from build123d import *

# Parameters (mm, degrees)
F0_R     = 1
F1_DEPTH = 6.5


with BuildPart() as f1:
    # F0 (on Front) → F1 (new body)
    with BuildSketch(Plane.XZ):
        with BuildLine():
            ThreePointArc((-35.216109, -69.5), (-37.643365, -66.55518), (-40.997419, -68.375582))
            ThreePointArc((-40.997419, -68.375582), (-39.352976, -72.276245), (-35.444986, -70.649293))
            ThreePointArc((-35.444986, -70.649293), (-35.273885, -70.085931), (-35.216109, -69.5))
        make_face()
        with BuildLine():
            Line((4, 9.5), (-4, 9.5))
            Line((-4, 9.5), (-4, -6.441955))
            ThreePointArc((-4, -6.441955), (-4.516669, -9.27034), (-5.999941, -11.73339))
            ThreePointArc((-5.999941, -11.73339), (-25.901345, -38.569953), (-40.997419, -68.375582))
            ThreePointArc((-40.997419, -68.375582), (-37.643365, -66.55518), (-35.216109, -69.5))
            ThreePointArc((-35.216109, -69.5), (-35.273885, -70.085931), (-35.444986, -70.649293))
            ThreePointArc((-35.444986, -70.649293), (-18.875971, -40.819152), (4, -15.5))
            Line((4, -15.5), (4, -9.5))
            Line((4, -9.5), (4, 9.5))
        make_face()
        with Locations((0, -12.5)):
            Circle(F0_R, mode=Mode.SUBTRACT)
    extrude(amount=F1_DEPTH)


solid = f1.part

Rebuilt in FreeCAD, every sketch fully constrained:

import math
import FreeCAD as App
import Part
import Sketcher

doc = App.newDocument("Part")
params = doc.addObject("Spreadsheet::Sheet", "Params")
for row, (alias, value) in enumerate([
    ("sketch1_diameter", "2 mm"),
    ("sketch1_radius", "3 mm"),
    ("sketch1_width", "8 mm"),
    ("sketch1_height", "25 mm"),
    ("pad1_length", "6.5 mm"),
], start=1):
    params.set(f"A{row}", alias)
    params.set(f"B{row}", "=" + value)
    params.setAlias(f"B{row}", alias)

body = doc.addObject("PartDesign::Body", "Body")

# Sketch on XZ plane
sketch1 = body.newObject("Sketcher::SketchObject", "Sketch")
sketch1.AttachmentSupport = (doc.getObject("XZ_Plane"), [""])
sketch1.MapMode = "FlatFace"
sketch1.addGeometry([
    Part.ArcOfCircle(Part.Circle(App.Vector(-38.2, -69.5, 0), App.Vector(0, 0, 1), 3), math.radians(158), math.radians(337)),  # 0
    Part.ArcOfCircle(Part.Circle(App.Vector(103.3, -128.2, 0), App.Vector(0, 0, 1), 150.2), math.radians(131), math.radians(157)),  # 1
    Part.LineSegment(App.Vector(4, -15.5, 0), App.Vector(4, 9.5, 0)),  # 2
    Part.LineSegment(App.Vector(4, 9.5, 0), App.Vector(-4, 9.5, 0)),  # 3
    Part.LineSegment(App.Vector(-4, 9.5, 0), App.Vector(-4, -6.4, 0)),  # 4
    Part.ArcOfCircle(Part.Circle(App.Vector(-12, -6.4, 0), App.Vector(0, 0, 1), 8), math.radians(-41), math.radians(0)),  # 5
    Part.ArcOfCircle(Part.Circle(App.Vector(142.2, -142.4, 0), App.Vector(0, 0, 1), 197.6), math.radians(138.59), math.radians(157.99)),  # 6
    Part.Circle(App.Vector(0, -12.5, 0), App.Vector(0, 0, 1), 1),  # 7
], False)
sketch1.addConstraint([
    Sketcher.Constraint("Tangent", 0, 2, 1, 2),
    Sketcher.Constraint("Coincident", 1, 1, 2, 1),
    Sketcher.Constraint("Coincident", 2, 2, 3, 1),
    Sketcher.Constraint("Coincident", 3, 2, 4, 1),
    Sketcher.Constraint("Tangent", 4, 2, 5, 2),
    Sketcher.Constraint("Tangent", 5, 1, 6, 1),
    Sketcher.Constraint("Tangent", 6, 2, 0, 1),
    Sketcher.Constraint("Vertical", 2),
    Sketcher.Constraint("Horizontal", 3),
    Sketcher.Constraint("Vertical", 4),
    Sketcher.Constraint("PointOnObject", 7, 3, -2),
    Sketcher.Constraint("Diameter", 7, 2.0),
    Sketcher.Constraint("Radius", 0, 3.0),
    Sketcher.Constraint("DistanceX", 3, 2, 3, 1, 8.0),
    Sketcher.Constraint("DistanceY", 2, 1, 2, 2, 25.0),
    Sketcher.Constraint("DistanceX", -1, 1, 1, 1, 4.0),
    Sketcher.Constraint("DistanceY", 0, 3, 7, 3, 57.0),
    Sketcher.Constraint("DistanceY", 1, 1, 7, 3, 3.0),
    Sketcher.Constraint("DistanceY", 0, 3, -1, 1, 69.5),
    Sketcher.Constraint("Radius", 1, 150.16098),
    Sketcher.Constraint("Radius", 5, 7.999992),
    Sketcher.Constraint("Radius", 6, 197.618756),
    Sketcher.Constraint("DistanceY", 4, 2, 4, 1, 15.941955),
    Sketcher.Constraint("DistanceX", 0, 3, -1, 1, 38.21611),
])
sketch1.setExpression("Constraints[11]", "Params.sketch1_diameter")
sketch1.setExpression("Constraints[12]", "Params.sketch1_radius")
sketch1.setExpression("Constraints[13]", "Params.sketch1_width")
sketch1.setExpression("Constraints[14]", "Params.sketch1_height")
pad1 = body.newObject("PartDesign::Pad", "Pad")
pad1.Profile = sketch1
pad1.setExpression("Length", "Params.pad1_length")

doc.recompute()
